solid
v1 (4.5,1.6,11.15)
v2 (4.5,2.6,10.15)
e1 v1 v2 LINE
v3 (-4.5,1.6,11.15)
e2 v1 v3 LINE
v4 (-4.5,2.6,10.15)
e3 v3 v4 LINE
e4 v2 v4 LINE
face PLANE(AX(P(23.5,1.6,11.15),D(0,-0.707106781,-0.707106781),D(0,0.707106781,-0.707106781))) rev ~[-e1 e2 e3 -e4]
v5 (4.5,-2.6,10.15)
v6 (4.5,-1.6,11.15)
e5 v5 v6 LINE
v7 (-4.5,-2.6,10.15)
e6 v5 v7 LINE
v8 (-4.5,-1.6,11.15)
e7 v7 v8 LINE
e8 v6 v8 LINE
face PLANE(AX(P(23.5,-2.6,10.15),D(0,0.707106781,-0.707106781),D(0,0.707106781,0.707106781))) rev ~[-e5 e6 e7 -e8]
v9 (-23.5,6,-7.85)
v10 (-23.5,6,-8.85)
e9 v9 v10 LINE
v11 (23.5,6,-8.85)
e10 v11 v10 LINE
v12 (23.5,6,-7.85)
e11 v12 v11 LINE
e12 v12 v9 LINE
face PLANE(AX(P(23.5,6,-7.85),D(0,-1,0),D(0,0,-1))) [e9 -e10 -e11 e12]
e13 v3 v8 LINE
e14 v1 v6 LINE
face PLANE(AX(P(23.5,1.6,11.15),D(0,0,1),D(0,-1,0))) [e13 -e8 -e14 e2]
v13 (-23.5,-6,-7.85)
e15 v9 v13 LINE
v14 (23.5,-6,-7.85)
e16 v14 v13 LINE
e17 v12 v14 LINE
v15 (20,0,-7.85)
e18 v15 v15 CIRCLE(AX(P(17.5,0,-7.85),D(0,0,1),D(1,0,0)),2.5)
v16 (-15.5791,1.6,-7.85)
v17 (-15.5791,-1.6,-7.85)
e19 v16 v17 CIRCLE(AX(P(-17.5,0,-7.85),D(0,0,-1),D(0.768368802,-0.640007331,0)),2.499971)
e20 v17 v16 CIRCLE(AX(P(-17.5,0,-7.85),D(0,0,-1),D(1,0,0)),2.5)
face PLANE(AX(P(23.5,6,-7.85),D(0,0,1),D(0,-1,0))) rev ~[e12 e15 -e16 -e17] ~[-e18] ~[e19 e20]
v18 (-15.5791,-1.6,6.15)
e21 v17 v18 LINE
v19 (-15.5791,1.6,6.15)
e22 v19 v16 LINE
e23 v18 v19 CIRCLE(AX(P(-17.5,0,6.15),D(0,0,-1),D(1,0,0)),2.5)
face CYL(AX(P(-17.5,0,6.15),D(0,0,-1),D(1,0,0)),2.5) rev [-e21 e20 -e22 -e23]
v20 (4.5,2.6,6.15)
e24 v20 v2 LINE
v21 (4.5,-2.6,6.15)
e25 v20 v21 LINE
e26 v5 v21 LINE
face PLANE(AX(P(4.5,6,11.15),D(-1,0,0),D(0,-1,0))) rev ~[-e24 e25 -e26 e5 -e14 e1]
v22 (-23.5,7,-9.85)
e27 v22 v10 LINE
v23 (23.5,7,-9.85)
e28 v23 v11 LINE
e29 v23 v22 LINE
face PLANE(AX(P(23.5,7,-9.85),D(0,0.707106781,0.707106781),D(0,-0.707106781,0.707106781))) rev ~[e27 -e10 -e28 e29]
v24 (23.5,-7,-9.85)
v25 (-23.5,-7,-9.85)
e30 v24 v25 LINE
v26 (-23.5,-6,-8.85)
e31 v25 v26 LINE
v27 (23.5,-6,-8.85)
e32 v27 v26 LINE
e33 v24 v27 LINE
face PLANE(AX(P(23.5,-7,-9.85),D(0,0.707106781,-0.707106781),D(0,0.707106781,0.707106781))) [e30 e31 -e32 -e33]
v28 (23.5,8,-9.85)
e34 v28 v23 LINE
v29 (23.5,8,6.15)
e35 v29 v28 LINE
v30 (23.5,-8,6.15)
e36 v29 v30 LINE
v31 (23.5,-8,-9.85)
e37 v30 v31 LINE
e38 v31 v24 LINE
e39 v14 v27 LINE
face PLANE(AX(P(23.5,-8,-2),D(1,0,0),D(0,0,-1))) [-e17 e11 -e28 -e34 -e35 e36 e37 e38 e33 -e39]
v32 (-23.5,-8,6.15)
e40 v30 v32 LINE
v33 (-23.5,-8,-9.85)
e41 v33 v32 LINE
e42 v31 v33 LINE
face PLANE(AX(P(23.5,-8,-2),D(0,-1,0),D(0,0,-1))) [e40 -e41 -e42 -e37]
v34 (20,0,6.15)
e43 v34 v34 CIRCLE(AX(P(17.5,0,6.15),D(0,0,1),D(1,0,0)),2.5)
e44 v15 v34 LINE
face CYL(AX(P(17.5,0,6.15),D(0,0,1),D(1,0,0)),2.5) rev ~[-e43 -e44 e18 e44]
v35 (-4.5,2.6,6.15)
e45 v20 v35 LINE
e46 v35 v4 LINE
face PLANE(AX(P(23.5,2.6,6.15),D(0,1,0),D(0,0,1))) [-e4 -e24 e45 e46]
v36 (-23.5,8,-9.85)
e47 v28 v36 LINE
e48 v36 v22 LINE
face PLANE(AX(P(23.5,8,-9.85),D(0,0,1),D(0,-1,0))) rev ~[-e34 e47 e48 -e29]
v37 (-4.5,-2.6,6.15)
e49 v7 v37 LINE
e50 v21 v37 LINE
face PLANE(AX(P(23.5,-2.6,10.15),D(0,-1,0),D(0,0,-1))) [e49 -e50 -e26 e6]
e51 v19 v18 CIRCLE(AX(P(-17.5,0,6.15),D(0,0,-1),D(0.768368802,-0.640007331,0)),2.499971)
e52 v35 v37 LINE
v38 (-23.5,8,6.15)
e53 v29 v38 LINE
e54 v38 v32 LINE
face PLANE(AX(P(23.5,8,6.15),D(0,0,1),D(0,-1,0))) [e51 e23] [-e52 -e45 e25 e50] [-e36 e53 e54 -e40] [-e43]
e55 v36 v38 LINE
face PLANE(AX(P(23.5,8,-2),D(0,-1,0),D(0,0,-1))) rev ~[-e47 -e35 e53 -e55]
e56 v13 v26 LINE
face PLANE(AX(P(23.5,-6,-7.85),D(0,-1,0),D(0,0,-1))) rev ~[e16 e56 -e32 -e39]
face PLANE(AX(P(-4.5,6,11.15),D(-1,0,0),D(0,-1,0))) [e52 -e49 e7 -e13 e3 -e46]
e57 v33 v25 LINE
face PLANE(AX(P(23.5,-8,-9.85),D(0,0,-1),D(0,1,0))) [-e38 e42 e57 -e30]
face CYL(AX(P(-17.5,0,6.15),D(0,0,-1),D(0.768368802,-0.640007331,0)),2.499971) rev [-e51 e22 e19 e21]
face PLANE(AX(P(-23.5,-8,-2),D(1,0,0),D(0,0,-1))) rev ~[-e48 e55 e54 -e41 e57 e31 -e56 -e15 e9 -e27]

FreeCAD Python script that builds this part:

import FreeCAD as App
import Part
import Sketcher
Q = App.Units.Quantity


def add_polygon(sketch, points):
    """Adds a closed chain of lines whose ends are joined by coincident constraints."""
    first, n = sketch.GeometryCount, len(points)
    for a, b in zip(points, points[1:] + points[:1]):
        sketch.addGeometry(Part.LineSegment(App.Vector(*a, 0), App.Vector(*b, 0)), False)
    for i in range(n):
        sketch.addConstraint(Sketcher.Constraint("Coincident", first + i, 2, first + (i + 1) % n, 1))

doc = App.newDocument("Part")
body = doc.addObject("PartDesign::Body", "Body")

# Sketch on YZ plane
sketch1 = body.newObject("Sketcher::SketchObject", "Sketch")
sketch1.AttachmentSupport = (doc.getObject("YZ_Plane"), [""])
sketch1.MapMode = "FlatFace"
sketch1.AttachmentOffset = App.Placement(App.Vector(0, 0, 23.5), App.Rotation())
add_polygon(sketch1, [(8, -9.8), (8, 6.2), (2.6, 6.2), (2.6, 10.2), (1.6, 11.2), (-1.6, 11.2), (-2.6, 10.2), (-2.6, 6.2), (-8, 6.2), (-8, -9.8), (-7, -9.8), (-6, -8.8), (-6, -7.8), (6, -7.8), (6, -8.8), (7, -9.8)])  # lines 0-15
sketch1.addConstraint([
    Sketcher.Constraint("Vertical", 0),
    Sketcher.Constraint("Horizontal", 1),
    Sketcher.Constraint("Vertical", 2),
    Sketcher.Constraint("Horizontal", 4),
    Sketcher.Constraint("Vertical", 6),
    Sketcher.Constraint("Horizontal", 7),
    Sketcher.Constraint("Vertical", 8),
    Sketcher.Constraint("Horizontal", 9),
    Sketcher.Constraint("Vertical", 11),
    Sketcher.Constraint("Horizontal", 12),
    Sketcher.Constraint("Vertical", 13),
    Sketcher.Constraint("Horizontal", 15),
    Sketcher.Constraint("Symmetric", 2, 2, 5, 2, -2),
    Sketcher.Constraint("Symmetric", 0, 2, 7, 2, -2),
    Sketcher.Constraint("Symmetric", 10, 2, 13, 2, -2),
    Sketcher.Constraint("Symmetric", 9, 2, 14, 2, -2),
    Sketcher.Constraint("Perpendicular", 3, 5),
    Sketcher.Constraint("Parallel", 5, 10),
    Sketcher.Constraint("Perpendicular", 10, 14),
    Sketcher.Constraint("Equal", 15, 11),
    Sketcher.Constraint("Equal", 5, 10),
    Sketcher.Constraint("DistanceX", 9, 1, 9, 2, Q("1 mm")),
    Sketcher.Constraint("DistanceX", 12, 1, 12, 2, Q("12 mm")),
    Sketcher.Constraint("DistanceY", 0, 1, 0, 2, Q("16 mm")),
    Sketcher.Constraint("DistanceY", 2, 1, 2, 2, Q("4 mm")),
    Sketcher.Constraint("DistanceY", 11, 2, -1, 1, Q("7.85 mm")),
    Sketcher.Constraint("DistanceX", 1, 2, 1, 1, Q("5.4 mm")),
    Sketcher.Constraint("DistanceX", -1, 1, 0, 2, Q("8 mm")),
])
pad1 = body.newObject("PartDesign::Pad", "Pad")
pad1.Profile = sketch1
pad1.Length = 47
pad1.Reversed = True

# Sketch on XY plane
sketch2 = body.newObject("Sketcher::SketchObject", "Sketch001")
sketch2.AttachmentSupport = (doc.getObject("XY_Plane"), [""])
sketch2.MapMode = "FlatFace"
sketch2.AttachmentOffset = App.Placement(App.Vector(0, 0, 6.15), App.Rotation())
sketch2.addGeometry([
    Part.Circle(App.Vector(-17.5, 0, 0), App.Vector(0, 0, 1), 2.5),
    Part.Circle(App.Vector(17.5, 0, 0), App.Vector(0, 0, 1), 2.5),
], False)
sketch2.addConstraint([
    Sketcher.Constraint("Equal", 0, 1),
    Sketcher.Constraint("Symmetric", 0, 3, 1, 3, -1, 1),
    Sketcher.Constraint("PointOnObject", 0, 3, -1),
    Sketcher.Constraint("Diameter", 0, Q("5 mm")),
    Sketcher.Constraint("DistanceX", 0, 3, 1, 3, Q("35 mm")),
])
pocket1 = body.newObject("PartDesign::Pocket", "Pocket")
pocket1.Profile = sketch2
pocket1.Length = 50
pocket1.Midplane = True

# Sketch on XY plane
sketch3 = body.newObject("Sketcher::SketchObject", "Sketch002")
sketch3.AttachmentSupport = (doc.getObject("XY_Plane"), [""])
sketch3.MapMode = "FlatFace"
sketch3.AttachmentOffset = App.Placement(App.Vector(0, 0, 11.15), App.Rotation())
add_polygon(sketch3, [(-4, 6), (-24, 6), (-24, -6), (-4, -6)])  # lines 0-3
add_polygon(sketch3, [(24, -6), (24, 6), (4, 6), (4, -6)])  # lines 4-7
sketch3.addConstraint([
    Sketcher.Constraint("Horizontal", 0),
    Sketcher.Constraint("Vertical", 1),
    Sketcher.Constraint("Horizontal", 2),
    Sketcher.Constraint("Vertical", 3),
    Sketcher.Constraint("Vertical", 4),
    Sketcher.Constraint("Horizontal", 5),
    Sketcher.Constraint("Vertical", 6),
    Sketcher.Constraint("Horizontal", 7),
    Sketcher.Constraint("Symmetric", 1, 2, 4, 2, -1, 1),
    Sketcher.Constraint("Symmetric", 3, 2, 6, 2, -1, 1),
    Sketcher.Constraint("Horizontal", 3, 2, 4, 2),
    Sketcher.Constraint("DistanceX", 0, 2, 0, 1, Q("19 mm")),
    Sketcher.Constraint("DistanceY", 1, 2, 1, 1, Q("12 mm")),
    Sketcher.Constraint("DistanceX", 3, 2, 4, 2, Q("28 mm")),
])
pocket2 = body.newObject("PartDesign::Pocket", "Pocket001")
pocket2.Profile = sketch3
pocket2.Length = 5

doc.recompute()
